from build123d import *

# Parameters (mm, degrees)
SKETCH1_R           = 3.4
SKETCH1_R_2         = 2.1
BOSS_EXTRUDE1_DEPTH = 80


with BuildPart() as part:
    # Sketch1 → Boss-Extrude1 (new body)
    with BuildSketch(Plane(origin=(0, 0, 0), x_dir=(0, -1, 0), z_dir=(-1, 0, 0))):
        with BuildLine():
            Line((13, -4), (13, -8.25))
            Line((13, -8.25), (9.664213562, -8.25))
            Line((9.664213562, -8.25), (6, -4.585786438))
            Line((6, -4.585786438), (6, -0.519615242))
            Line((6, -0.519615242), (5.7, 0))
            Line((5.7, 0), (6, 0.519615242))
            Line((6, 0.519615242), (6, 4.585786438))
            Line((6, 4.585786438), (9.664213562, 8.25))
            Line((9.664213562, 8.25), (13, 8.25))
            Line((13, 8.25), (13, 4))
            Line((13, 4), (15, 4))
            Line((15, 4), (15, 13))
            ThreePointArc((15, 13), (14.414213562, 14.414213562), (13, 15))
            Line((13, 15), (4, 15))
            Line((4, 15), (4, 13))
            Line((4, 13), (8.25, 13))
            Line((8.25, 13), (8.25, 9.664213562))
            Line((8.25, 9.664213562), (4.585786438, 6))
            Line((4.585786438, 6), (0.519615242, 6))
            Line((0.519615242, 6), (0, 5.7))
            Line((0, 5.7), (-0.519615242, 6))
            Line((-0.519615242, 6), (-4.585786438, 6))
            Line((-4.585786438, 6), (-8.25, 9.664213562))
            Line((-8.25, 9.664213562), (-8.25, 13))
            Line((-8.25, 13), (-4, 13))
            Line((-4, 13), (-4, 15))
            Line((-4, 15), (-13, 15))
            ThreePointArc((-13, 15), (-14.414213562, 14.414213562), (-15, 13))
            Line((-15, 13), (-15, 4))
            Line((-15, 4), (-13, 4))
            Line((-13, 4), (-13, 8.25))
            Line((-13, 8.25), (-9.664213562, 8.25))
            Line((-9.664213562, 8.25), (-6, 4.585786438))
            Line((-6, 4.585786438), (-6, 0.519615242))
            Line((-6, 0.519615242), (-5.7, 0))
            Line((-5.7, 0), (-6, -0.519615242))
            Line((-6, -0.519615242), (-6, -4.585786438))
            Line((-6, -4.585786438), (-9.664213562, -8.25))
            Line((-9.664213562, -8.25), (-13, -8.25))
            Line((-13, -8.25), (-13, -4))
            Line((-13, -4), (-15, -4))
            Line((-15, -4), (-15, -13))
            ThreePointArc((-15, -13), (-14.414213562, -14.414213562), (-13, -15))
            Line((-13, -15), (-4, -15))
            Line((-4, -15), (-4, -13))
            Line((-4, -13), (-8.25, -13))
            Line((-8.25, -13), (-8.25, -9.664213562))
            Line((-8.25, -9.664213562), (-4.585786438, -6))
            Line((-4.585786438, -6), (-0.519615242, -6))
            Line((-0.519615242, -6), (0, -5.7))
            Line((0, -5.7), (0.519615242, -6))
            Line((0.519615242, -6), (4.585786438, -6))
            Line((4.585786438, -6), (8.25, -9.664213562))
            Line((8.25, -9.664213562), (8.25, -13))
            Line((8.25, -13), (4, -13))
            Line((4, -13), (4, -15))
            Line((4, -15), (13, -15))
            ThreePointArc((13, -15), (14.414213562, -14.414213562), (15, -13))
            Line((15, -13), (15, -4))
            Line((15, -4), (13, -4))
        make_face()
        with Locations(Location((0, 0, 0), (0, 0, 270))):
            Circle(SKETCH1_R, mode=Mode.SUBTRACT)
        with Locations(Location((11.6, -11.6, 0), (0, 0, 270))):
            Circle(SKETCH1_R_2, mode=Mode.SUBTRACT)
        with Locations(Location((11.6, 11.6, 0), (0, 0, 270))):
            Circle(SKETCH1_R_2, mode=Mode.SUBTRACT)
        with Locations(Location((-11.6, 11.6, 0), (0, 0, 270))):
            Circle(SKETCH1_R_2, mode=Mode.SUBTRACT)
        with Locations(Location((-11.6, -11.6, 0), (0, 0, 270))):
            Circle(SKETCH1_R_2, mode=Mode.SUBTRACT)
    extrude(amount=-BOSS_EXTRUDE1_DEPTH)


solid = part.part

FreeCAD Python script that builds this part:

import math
import FreeCAD as App
import Part
import Sketcher
from FreeCAD import Vector
Q = App.Units.Quantity

doc = App.newDocument("Part")
body = doc.addObject("PartDesign::Body", "Body")

sketch1 = body.newObject("Sketcher::SketchObject", "Sketch")
sketch1.AttachmentSupport = (doc.getObject("YZ_Plane"), [""])
sketch1.MapMode = "FlatFace"
sketch1.addGeometry([
    Part.LineSegment(Vector(-13, -4, 0), Vector(-13, -8.25, 0)),
    Part.LineSegment(Vector(-13, -8.25, 0), Vector(-9.664214, -8.25, 0)),
    Part.LineSegment(Vector(-9.664214, -8.25, 0), Vector(-6, -4.585786, 0)),
    Part.LineSegment(Vector(-6, -4.585786, 0), Vector(-6, -0.519615, 0)),
    Part.LineSegment(Vector(-6, -0.519615, 0), Vector(-5.7, 0, 0)),
    Part.LineSegment(Vector(-5.7, 0, 0), Vector(-6, 0.519615, 0)),
    Part.LineSegment(Vector(-6, 0.519615, 0), Vector(-6, 4.585786, 0)),
    Part.LineSegment(Vector(-6, 4.585786, 0), Vector(-9.664214, 8.25, 0)),
    Part.LineSegment(Vector(-9.664214, 8.25, 0), Vector(-13, 8.25, 0)),
    Part.LineSegment(Vector(-13, 8.25, 0), Vector(-13, 4, 0)),
    Part.LineSegment(Vector(-13, 4, 0), Vector(-15, 4, 0)),
    Part.LineSegment(Vector(-15, 4, 0), Vector(-15, 13, 0)),
    Part.ArcOfCircle(Part.Circle(Vector(-13, 13, 0), Vector(0, 0, 1), 2), math.radians(90), math.radians(180)),
    Part.LineSegment(Vector(-13, 15, 0), Vector(-4, 15, 0)),
    Part.LineSegment(Vector(-4, 15, 0), Vector(-4, 13, 0)),
    Part.LineSegment(Vector(-4, 13, 0), Vector(-8.25, 13, 0)),
    Part.LineSegment(Vector(-8.25, 13, 0), Vector(-8.25, 9.664214, 0)),
    Part.LineSegment(Vector(-8.25, 9.664214, 0), Vector(-4.585786, 6, 0)),
    Part.LineSegment(Vector(-4.585786, 6, 0), Vector(-0.519615, 6, 0)),
    Part.LineSegment(Vector(-0.519615, 6, 0), Vector(0, 5.7, 0)),
    Part.LineSegment(Vector(0, 5.7, 0), Vector(0.519615, 6, 0)),
    Part.LineSegment(Vector(0.519615, 6, 0), Vector(4.585786, 6, 0)),
    Part.LineSegment(Vector(4.585786, 6, 0), Vector(8.25, 9.664214, 0)),
    Part.LineSegment(Vector(8.25, 9.664214, 0), Vector(8.25, 13, 0)),
    Part.LineSegment(Vector(8.25, 13, 0), Vector(4, 13, 0)),
    Part.LineSegment(Vector(4, 13, 0), Vector(4, 15, 0)),
    Part.LineSegment(Vector(4, 15, 0), Vector(13, 15, 0)),
    Part.ArcOfCircle(Part.Circle(Vector(13, 13, 0), Vector(0, 0, 1), 2), math.radians(0), math.radians(90)),
    Part.LineSegment(Vector(15, 13, 0), Vector(15, 4, 0)),
    Part.LineSegment(Vector(15, 4, 0), Vector(13, 4, 0)),
    Part.LineSegment(Vector(13, 4, 0), Vector(13, 8.25, 0)),
    Part.LineSegment(Vector(13, 8.25, 0), Vector(9.664214, 8.25, 0)),
    Part.LineSegment(Vector(9.664214, 8.25, 0), Vector(6, 4.585786, 0)),
    Part.LineSegment(Vector(6, 4.585786, 0), Vector(6, 0.519615, 0)),
    Part.LineSegment(Vector(6, 0.519615, 0), Vector(5.7, 0, 0)),
    Part.LineSegment(Vector(5.7, 0, 0), Vector(6, -0.519615, 0)),
    Part.LineSegment(Vector(6, -0.519615, 0), Vector(6, -4.585786, 0)),
    Part.LineSegment(Vector(6, -4.585786, 0), Vector(9.664214, -8.25, 0)),
    Part.LineSegment(Vector(9.664214, -8.25, 0), Vector(13, -8.25, 0)),
    Part.LineSegment(Vector(13, -8.25, 0), Vector(13, -4, 0)),
    Part.LineSegment(Vector(13, -4, 0), Vector(15, -4, 0)),
    Part.LineSegment(Vector(15, -4, 0), Vector(15, -13, 0)),
    Part.ArcOfCircle(Part.Circle(Vector(13, -13, 0), Vector(0, 0, 1), 2), math.radians(-90), math.radians(0)),
    Part.LineSegment(Vector(13, -15, 0), Vector(4, -15, 0)),
    Part.LineSegment(Vector(4, -15, 0), Vector(4, -13, 0)),
    Part.LineSegment(Vector(4, -13, 0), Vector(8.25, -13, 0)),
    Part.LineSegment(Vector(8.25, -13, 0), Vector(8.25, -9.664214, 0)),
    Part.LineSegment(Vector(8.25, -9.664214, 0), Vector(4.585786, -6, 0)),
    Part.LineSegment(Vector(4.585786, -6, 0), Vector(0.519615, -6, 0)),
    Part.LineSegment(Vector(0.519615, -6, 0), Vector(0, -5.7, 0)),
    Part.LineSegment(Vector(0, -5.7, 0), Vector(-0.519615, -6, 0)),
    Part.LineSegment(Vector(-0.519615, -6, 0), Vector(-4.585786, -6, 0)),
    Part.LineSegment(Vector(-4.585786, -6, 0), Vector(-8.25, -9.664214, 0)),
    Part.LineSegment(Vector(-8.25, -9.664214, 0), Vector(-8.25, -13, 0)),
    Part.LineSegment(Vector(-8.25, -13, 0), Vector(-4, -13, 0)),
    Part.LineSegment(Vector(-4, -13, 0), Vector(-4, -15, 0)),
    Part.LineSegment(Vector(-4, -15, 0), Vector(-13, -15, 0)),
    Part.ArcOfCircle(Part.Circle(Vector(-13, -13, 0), Vector(0, 0, 1), 2), math.radians(-180), math.radians(-90)),
    Part.LineSegment(Vector(-15, -13, 0), Vector(-15, -4, 0)),
    Part.LineSegment(Vector(-15, -4, 0), Vector(-13, -4, 0)),
    Part.Circle(Vector(11.6, -11.6, 0), Vector(0, 0, 1), 2.1),
    Part.Circle(Vector(-11.6, -11.6, 0), Vector(0, 0, 1), 2.1),
    Part.Circle(Vector(11.6, 11.6, 0), Vector(0, 0, 1), 2.1),
    Part.Circle(Vector(0, 0, 0), Vector(0, 0, 1), 3.4),
    Part.Circle(Vector(-11.6, 11.6, 0), Vector(0, 0, 1), 2.1),
], False)
sketch1.addConstraint([
    Sketcher.Constraint("Coincident", 0, 2, 1, 1),
    Sketcher.Constraint("Coincident", 1, 2, 2, 1),
    Sketcher.Constraint("Coincident", 2, 2, 3, 1),
    Sketcher.Constraint("Coincident", 3, 2, 4, 1),
    Sketcher.Constraint("Coincident", 4, 2, 5, 1),
    Sketcher.Constraint("Coincident", 5, 2, 6, 1),
    Sketcher.Constraint("Coincident", 6, 2, 7, 1),
    Sketcher.Constraint("Coincident", 7, 2, 8, 1),
    Sketcher.Constraint("Coincident", 8, 2, 9, 1),
    Sketcher.Constraint("Coincident", 9, 2, 10, 1),
    Sketcher.Constraint("Coincident", 10, 2, 11, 1),
    Sketcher.Constraint("Tangent", 11, 2, 12, 2),
    Sketcher.Constraint("Tangent", 12, 1, 13, 1),
    Sketcher.Constraint("Coincident", 13, 2, 14, 1),
    Sketcher.Constraint("Coincident", 14, 2, 15, 1),
    Sketcher.Constraint("Coincident", 15, 2, 16, 1),
    Sketcher.Constraint("Coincident", 16, 2, 17, 1),
    Sketcher.Constraint("Coincident", 17, 2, 18, 1),
    Sketcher.Constraint("Coincident", 18, 2, 19, 1),
    Sketcher.Constraint("Coincident", 19, 2, 20, 1),
    Sketcher.Constraint("Coincident", 20, 2, 21, 1),
    Sketcher.Constraint("Coincident", 21, 2, 22, 1),
    Sketcher.Constraint("Coincident", 22, 2, 23, 1),
    Sketcher.Constraint("Coincident", 23, 2, 24, 1),
    Sketcher.Constraint("Coincident", 24, 2, 25, 1),
    Sketcher.Constraint("Coincident", 25, 2, 26, 1),
    Sketcher.Constraint("Tangent", 26, 2, 27, 2),
    Sketcher.Constraint("Tangent", 27, 1, 28, 1),
    Sketcher.Constraint("Coincident", 28, 2, 29, 1),
    Sketcher.Constraint("Coincident", 29, 2, 30, 1),
    Sketcher.Constraint("Coincident", 30, 2, 31, 1),
    Sketcher.Constraint("Coincident", 31, 2, 32, 1),
    Sketcher.Constraint("Coincident", 32, 2, 33, 1),
    Sketcher.Constraint("Coincident", 33, 2, 34, 1),
    Sketcher.Constraint("Coincident", 34, 2, 35, 1),
    Sketcher.Constraint("Coincident", 35, 2, 36, 1),
    Sketcher.Constraint("Coincident", 36, 2, 37, 1),
    Sketcher.Constraint("Coincident", 37, 2, 38, 1),
    Sketcher.Constraint("Coincident", 38, 2, 39, 1),
    Sketcher.Constraint("Coincident", 39, 2, 40, 1),
    Sketcher.Constraint("Coincident", 40, 2, 41, 1),
    Sketcher.Constraint("Tangent", 41, 2, 42, 2),
    Sketcher.Constraint("Tangent", 42, 1, 43, 1),
    Sketcher.Constraint("Coincident", 43, 2, 44, 1),
    Sketcher.Constraint("Coincident", 44, 2, 45, 1),
    Sketcher.Constraint("Coincident", 45, 2, 46, 1),
    Sketcher.Constraint("Coincident", 46, 2, 47, 1),
    Sketcher.Constraint("Coincident", 47, 2, 48, 1),
    Sketcher.Constraint("Coincident", 48, 2, 49, 1),
    Sketcher.Constraint("Coincident", 49, 2, 50, 1),
    Sketcher.Constraint("Coincident", 50, 2, 51, 1),
    Sketcher.Constraint("Coincident", 51, 2, 52, 1),
    Sketcher.Constraint("Coincident", 52, 2, 53, 1),
    Sketcher.Constraint("Coincident", 53, 2, 54, 1),
    Sketcher.Constraint("Coincident", 54, 2, 55, 1),
    Sketcher.Constraint("Coincident", 55, 2, 56, 1),
    Sketcher.Constraint("Tangent", 56, 2, 57, 2),
    Sketcher.Constraint("Tangent", 57, 1, 58, 1),
    Sketcher.Constraint("Coincident", 58, 2, 59, 1),
    Sketcher.Constraint("Coincident", 59, 2, 0, 1),
    Sketcher.Constraint("Vertical", 0),
    Sketcher.Constraint("Horizontal", 1),
    Sketcher.Constraint("Vertical", 3),
    Sketcher.Constraint("Vertical", 6),
    Sketcher.Constraint("Horizontal", 8),
    Sketcher.Constraint("Vertical", 9),
    Sketcher.Constraint("Horizontal", 10),
    Sketcher.Constraint("Vertical", 11),
    Sketcher.Constraint("Horizontal", 13),
    Sketcher.Constraint("Vertical", 14),
    Sketcher.Constraint("Horizontal", 15),
    Sketcher.Constraint("Vertical", 16),
    Sketcher.Constraint("Horizontal", 18),
    Sketcher.Constraint("Horizontal", 21),
    Sketcher.Constraint("Vertical", 23),
    Sketcher.Constraint("Horizontal", 24),
    Sketcher.Constraint("Vertical", 25),
    Sketcher.Constraint("Horizontal", 26),
    Sketcher.Constraint("Vertical", 28),
    Sketcher.Constraint("Horizontal", 29),
    Sketcher.Constraint("Vertical", 30),
    Sketcher.Constraint("Horizontal", 31),
    Sketcher.Constraint("Vertical", 33),
    Sketcher.Constraint("Vertical", 36),
    Sketcher.Constraint("Horizontal", 38),
    Sketcher.Constraint("Vertical", 39),
    Sketcher.Constraint("Horizontal", 40),
    Sketcher.Constraint("Vertical", 41),
    Sketcher.Constraint("Horizontal", 43),
    Sketcher.Constraint("Vertical", 44),
    Sketcher.Constraint("Horizontal", 45),
    Sketcher.Constraint("Vertical", 46),
    Sketcher.Constraint("Horizontal", 48),
    Sketcher.Constraint("Horizontal", 51),
    Sketcher.Constraint("Vertical", 53),
    Sketcher.Constraint("Horizontal", 54),
    Sketcher.Constraint("Vertical", 55),
    Sketcher.Constraint("Horizontal", 56),
    Sketcher.Constraint("Vertical", 58),
    Sketcher.Constraint("Horizontal", 59),
    Sketcher.Constraint("Coincident", 63, 3, -1, 1),
    Sketcher.Constraint("Equal", 12, 27),
    Sketcher.Constraint("Equal", 27, 42),
    Sketcher.Constraint("Equal", 42, 57),
    Sketcher.Constraint("Equal", 60, 61),
    Sketcher.Constraint("Equal", 61, 62),
    Sketcher.Constraint("Equal", 62, 64),
    Sketcher.Constraint("Symmetric", 12, 3, 42, 3, -1, 1),
    Sketcher.Constraint("Symmetric", 27, 3, 57, 3, -1, 1),
    Sketcher.Constraint("Symmetric", 61, 3, 62, 3, -1, 1),
    Sketcher.Constraint("Symmetric", 60, 3, 64, 3, -1, 1),
    Sketcher.Constraint("Symmetric", 0, 2, 30, 2, -1, 1),
    Sketcher.Constraint("Symmetric", 2, 2, 32, 2, -1, 1),
    Sketcher.Constraint("Symmetric", 4, 2, 34, 2, -1, 1),
    Sketcher.Constraint("Symmetric", 5, 2, 35, 2, -1, 1),
    Sketcher.Constraint("Symmetric", 7, 2, 37, 2, -1, 1),
    Sketcher.Constraint("Symmetric", 9, 2, 39, 2, -1, 1),
    Sketcher.Constraint("Symmetric", 14, 2, 44, 2, -1, 1),
    Sketcher.Constraint("Symmetric", 16, 2, 46, 2, -1, 1),
    Sketcher.Constraint("Symmetric", 17, 2, 47, 2, -1, 1),
    Sketcher.Constraint("Symmetric", 19, 2, 49, 2, -1, 1),
    Sketcher.Constraint("Symmetric", 20, 2, 50, 2, -1, 1),
    Sketcher.Constraint("Symmetric", 22, 2, 52, 2, -1, 1),
    Sketcher.Constraint("Symmetric", 24, 2, 54, 2, -1, 1),
    Sketcher.Constraint("Symmetric", 12, 3, 27, 3, -2),
    Sketcher.Constraint("Symmetric", 60, 3, 61, 3, -2),
    Sketcher.Constraint("Symmetric", 18, 2, 20, 2, -2),
    Sketcher.Constraint("Symmetric", 16, 2, 22, 2, -2),
    Sketcher.Constraint("Symmetric", 14, 2, 24, 2, -2),
    Sketcher.Constraint("Symmetric", 9, 2, 29, 2, -2),
    Sketcher.Constraint("Symmetric", 7, 2, 31, 2, -2),
    Sketcher.Constraint("Symmetric", 6, 2, 32, 2, -2),
    Sketcher.Constraint("PointOnObject", 4, 2, -1),
    Sketcher.Constraint("PointOnObject", 19, 2, -2),
    Sketcher.Constraint("Perpendicular", 2, 7),
    Sketcher.Constraint("Parallel", 7, 17),
    Sketcher.Constraint("Perpendicular", 4, 19),
    Sketcher.Constraint("Perpendicular", 5, 20),
    Sketcher.Constraint("Perpendicular", 17, 22),
    Sketcher.Constraint("Parallel", 22, 32),
    Sketcher.Constraint("Perpendicular", 19, 34),
    Sketcher.Constraint("Perpendicular", 32, 37),
    Sketcher.Constraint("Perpendicular", 34, 49),
    Sketcher.Constraint("Perpendicular", 47, 52),
    Sketcher.Constraint("Horizontal", 11, 2, 14, 2),
    Sketcher.Constraint("Horizontal", 40, 2, 58, 2),
    Sketcher.Constraint("Vertical", 57, 3, 0, 2),
    Sketcher.Constraint("Equal", 54, 0),
    Sketcher.Constraint("Equal", 51, 3),
    Sketcher.Constraint("Equal", 56, 11),
    Sketcher.Constraint("Equal", 38, 16),
    Sketcher.Constraint("Equal", 7, 17),
    Sketcher.Constraint("Equal", 5, 19),
    Sketcher.Constraint("Radius", 12, 2.0),
    Sketcher.Constraint("Diameter", 60, 4.2),
    Sketcher.Constraint("Diameter", 63, 6.8),
    Sketcher.Constraint("DistanceX", 13, 1, 13, 2, 9.0),
    Sketcher.Constraint("Angle", 4, Q("60 deg")),
    Sketcher.Constraint("DistanceX", 12, 3, -1, 1, 13.0),
    Sketcher.Constraint("DistanceX", 2, 2, -1, 1, 6.0),
    Sketcher.Constraint("Distance", 4, 0.6),
    Sketcher.Constraint("DistanceX", 15, 2, 15, 1, 4.25),
    Sketcher.Constraint("DistanceX", -1, 1, 60, 3, 11.6),
    Sketcher.Constraint("DistanceY", 60, 3, -1, 1, 11.6),
    Sketcher.Constraint("DistanceX", 18, 1, 18, 2, 4.066171),
])
pad1 = body.newObject("PartDesign::Pad", "Pad")
pad1.Profile = sketch1
pad1.Length = 80

doc.recompute()
